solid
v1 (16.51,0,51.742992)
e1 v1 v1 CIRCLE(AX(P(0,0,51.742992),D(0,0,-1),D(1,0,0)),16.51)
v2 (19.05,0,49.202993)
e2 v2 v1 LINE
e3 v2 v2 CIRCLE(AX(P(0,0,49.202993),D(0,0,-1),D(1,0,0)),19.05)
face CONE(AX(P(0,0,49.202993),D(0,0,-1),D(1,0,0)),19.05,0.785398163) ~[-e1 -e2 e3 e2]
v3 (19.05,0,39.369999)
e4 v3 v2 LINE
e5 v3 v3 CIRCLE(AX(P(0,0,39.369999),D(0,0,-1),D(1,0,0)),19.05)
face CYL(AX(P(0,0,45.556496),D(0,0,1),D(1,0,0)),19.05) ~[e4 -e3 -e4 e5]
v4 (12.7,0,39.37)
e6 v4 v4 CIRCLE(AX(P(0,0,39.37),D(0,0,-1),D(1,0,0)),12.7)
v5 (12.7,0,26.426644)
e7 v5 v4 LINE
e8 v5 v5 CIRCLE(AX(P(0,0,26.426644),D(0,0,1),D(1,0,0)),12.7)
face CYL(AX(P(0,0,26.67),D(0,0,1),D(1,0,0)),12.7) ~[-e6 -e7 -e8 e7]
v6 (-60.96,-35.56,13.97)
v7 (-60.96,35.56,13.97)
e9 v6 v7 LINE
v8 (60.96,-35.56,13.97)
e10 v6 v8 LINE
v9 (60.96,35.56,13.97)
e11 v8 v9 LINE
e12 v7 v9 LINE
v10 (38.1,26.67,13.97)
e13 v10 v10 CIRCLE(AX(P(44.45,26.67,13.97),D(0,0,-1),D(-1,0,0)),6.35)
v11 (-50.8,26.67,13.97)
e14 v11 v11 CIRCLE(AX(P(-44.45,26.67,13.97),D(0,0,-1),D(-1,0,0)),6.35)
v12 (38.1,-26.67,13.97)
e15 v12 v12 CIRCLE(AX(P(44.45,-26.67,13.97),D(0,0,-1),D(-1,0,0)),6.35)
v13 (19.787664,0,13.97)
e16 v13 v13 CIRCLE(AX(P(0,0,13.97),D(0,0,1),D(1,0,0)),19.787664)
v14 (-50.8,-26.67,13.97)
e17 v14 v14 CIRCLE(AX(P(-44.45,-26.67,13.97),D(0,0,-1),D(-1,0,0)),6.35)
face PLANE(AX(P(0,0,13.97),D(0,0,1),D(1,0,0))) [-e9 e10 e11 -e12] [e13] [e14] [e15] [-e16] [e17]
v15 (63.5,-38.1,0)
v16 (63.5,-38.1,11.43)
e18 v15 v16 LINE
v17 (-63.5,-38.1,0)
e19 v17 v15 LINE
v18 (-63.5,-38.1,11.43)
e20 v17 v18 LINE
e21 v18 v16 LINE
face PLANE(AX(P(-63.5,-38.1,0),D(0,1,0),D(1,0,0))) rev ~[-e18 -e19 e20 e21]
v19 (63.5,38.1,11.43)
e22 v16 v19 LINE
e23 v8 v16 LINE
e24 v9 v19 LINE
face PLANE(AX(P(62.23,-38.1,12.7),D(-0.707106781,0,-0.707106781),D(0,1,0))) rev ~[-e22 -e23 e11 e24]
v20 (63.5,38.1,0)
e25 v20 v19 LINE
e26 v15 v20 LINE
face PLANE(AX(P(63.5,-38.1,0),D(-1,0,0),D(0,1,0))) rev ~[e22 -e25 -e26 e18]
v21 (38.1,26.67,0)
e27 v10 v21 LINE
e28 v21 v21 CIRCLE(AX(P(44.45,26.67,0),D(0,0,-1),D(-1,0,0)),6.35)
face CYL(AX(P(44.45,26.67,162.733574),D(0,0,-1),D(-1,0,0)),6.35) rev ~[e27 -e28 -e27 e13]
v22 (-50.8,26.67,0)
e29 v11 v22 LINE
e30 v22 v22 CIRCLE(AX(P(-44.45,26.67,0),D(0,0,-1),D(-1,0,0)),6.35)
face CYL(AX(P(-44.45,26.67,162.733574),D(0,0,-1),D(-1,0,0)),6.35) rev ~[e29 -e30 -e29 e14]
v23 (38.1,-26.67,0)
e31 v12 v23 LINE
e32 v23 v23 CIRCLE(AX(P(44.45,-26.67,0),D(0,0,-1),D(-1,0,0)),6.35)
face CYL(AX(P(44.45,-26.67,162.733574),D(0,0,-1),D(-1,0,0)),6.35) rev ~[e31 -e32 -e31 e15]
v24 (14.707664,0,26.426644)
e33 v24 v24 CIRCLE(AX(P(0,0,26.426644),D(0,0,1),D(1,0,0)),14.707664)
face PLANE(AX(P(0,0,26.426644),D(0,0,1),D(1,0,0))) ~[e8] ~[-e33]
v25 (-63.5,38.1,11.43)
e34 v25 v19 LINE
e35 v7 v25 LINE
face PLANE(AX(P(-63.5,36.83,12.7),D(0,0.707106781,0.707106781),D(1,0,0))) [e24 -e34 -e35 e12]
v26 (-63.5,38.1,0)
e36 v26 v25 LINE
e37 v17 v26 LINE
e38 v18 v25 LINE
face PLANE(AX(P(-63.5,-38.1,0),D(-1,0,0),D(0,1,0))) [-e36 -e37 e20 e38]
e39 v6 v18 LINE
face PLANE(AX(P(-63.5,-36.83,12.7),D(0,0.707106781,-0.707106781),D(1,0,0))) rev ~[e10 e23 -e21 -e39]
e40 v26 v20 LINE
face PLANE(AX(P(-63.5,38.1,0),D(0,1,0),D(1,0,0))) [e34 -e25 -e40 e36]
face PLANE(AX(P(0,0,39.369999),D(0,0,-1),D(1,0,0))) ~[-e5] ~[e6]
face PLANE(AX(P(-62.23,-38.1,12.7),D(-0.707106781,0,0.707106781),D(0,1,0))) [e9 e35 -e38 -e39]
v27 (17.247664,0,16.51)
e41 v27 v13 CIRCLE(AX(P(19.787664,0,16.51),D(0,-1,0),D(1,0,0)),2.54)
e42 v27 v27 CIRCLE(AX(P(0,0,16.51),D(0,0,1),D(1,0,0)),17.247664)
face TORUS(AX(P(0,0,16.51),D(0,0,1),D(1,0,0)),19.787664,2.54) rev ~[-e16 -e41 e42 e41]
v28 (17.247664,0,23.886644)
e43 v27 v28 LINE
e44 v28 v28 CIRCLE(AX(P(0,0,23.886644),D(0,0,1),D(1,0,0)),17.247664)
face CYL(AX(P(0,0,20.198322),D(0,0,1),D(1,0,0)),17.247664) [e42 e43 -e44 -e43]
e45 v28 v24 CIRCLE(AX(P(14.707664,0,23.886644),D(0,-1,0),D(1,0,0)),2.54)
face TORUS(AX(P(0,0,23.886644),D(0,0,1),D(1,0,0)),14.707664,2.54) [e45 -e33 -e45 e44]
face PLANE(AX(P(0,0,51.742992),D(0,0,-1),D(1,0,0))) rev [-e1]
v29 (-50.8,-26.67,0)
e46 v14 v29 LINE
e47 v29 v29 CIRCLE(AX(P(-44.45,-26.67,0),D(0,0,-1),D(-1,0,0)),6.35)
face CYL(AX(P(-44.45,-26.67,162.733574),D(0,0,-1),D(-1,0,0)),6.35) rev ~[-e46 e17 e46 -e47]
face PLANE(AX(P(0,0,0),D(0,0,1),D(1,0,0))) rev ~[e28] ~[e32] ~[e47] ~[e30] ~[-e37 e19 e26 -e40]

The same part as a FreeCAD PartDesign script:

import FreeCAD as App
import Part
import Sketcher
from FreeCAD import Vector
Q = App.Units.Quantity


def edges_at(feature, points):
    """Names of the edges that pass closest to the given points."""
    edges = feature.Shape.Edges
    near = lambda p: min(range(len(edges)), key=lambda i: edges[i].distToShape(Part.Vertex(*p))[0])
    return sorted({f"Edge{near(p) + 1}" for p in points})


def add_polygon(sketch, points):
    """Adds a closed chain of lines whose ends are joined by coincident constraints."""
    first, n = sketch.GeometryCount, len(points)
    for a, b in zip(points, points[1:] + points[:1]):
        sketch.addGeometry(Part.LineSegment(App.Vector(*a, 0), App.Vector(*b, 0)), False)
    for i in range(n):
        sketch.addConstraint(Sketcher.Constraint("Coincident", first + i, 2, first + (i + 1) % n, 1))

doc = App.newDocument("Part")
params = doc.addObject("Spreadsheet::Sheet", "Params")
for row, (alias, value) in enumerate([
    ("sketch1_width", "5 in"),
    ("sketch1_height", "3 in"),
    ("pad1_length", "0.55 in"),
    ("sketch2_diameter", "0.5 in"),
    ("hole_diameter", "0.5 in"),
    ("sketch3_height", "1 in"),
    ("sketch3_width", "0.5 in"),
    ("revolution_angle", "360 deg"),
    ("sketch4_width", "0.75 in"),
    ("revolution2_angle", "360 deg"),
    ("revolution3_angle", "360 deg"),
    ("fillet_radius", "0.1 in"),
    ("chamfer_size", "0.1 in"),
    ("chamfer2_size", "0.1 in"),
], start=1):
    params.set(f"A{row}", alias)
    params.set(f"B{row}", "=" + value)
    params.setAlias(f"B{row}", alias)

body = doc.addObject("PartDesign::Body", "Body")

sketch1 = doc.addObject("Sketcher::SketchObject", "Sketch")
body.addObject(sketch1)
sketch1.AttachmentSupport = (doc.XY_Plane, [""])
sketch1.MapMode = "FlatFace"
add_polygon(sketch1, [(-64, 38), (-64, -38), (64, -38), (64, 38)])
sketch1.addConstraint([
    Sketcher.Constraint("Vertical", 0),
    Sketcher.Constraint("Horizontal", 1),
    Sketcher.Constraint("Vertical", 2),
    Sketcher.Constraint("Horizontal", 3),
    Sketcher.Constraint("Symmetric", 0, 2, 2, 2, -1, 1),
    Sketcher.Constraint("DistanceX", 1, 1, 1, 2, Q("5 in")),
    Sketcher.Constraint("DistanceY", 0, 2, 0, 1, Q("3 in")),
])
sketch1.setExpression("Constraints[9]", "Params.sketch1_width")
sketch1.setExpression("Constraints[10]", "Params.sketch1_height")
pad1 = doc.addObject("PartDesign::Pad", "Pad")
body.addObject(pad1)
pad1.Profile = sketch1
pad1.setExpression("Length", "Params.pad1_length")

sketch2 = doc.addObject("Sketcher::SketchObject", "Sketch001")
body.addObject(sketch2)
sketch2.AttachmentSupport = (doc.XY_Plane, [""])
sketch2.MapMode = "FlatFace"
sketch2.AttachmentOffset = App.Placement(Vector(0, 0, 0.55 * 25.4), App.Rotation())
sketch2.addGeometry([
    Part.Circle(Vector(-44, 27, 0), Vector(0, 0, 1), 6),
    Part.Circle(Vector(-44, -27, 0), Vector(0, 0, 1), 6),
    Part.Circle(Vector(44, 27, 0), Vector(0, 0, 1), 6),
    Part.Circle(Vector(44, -27, 0), Vector(0, 0, 1), 6),
], False)
sketch2.addConstraint([
    Sketcher.Constraint("Equal", 0, 1),
    Sketcher.Constraint("Equal", 1, 2),
    Sketcher.Constraint("Equal", 2, 3),
    Sketcher.Constraint("Symmetric", 1, 3, 2, 3, -1, 1),
    Sketcher.Constraint("Symmetric", 0, 3, 3, 3, -1, 1),
    Sketcher.Constraint("Symmetric", 0, 3, 2, 3, -2),
    Sketcher.Constraint("Diameter", 0, Q("0.5 in")),
    Sketcher.Constraint("DistanceY", 1, 3, 0, 3, Q("2.1 in")),
    Sketcher.Constraint("DistanceX", 0, 3, 2, 3, Q("3.5 in")),
])
sketch2.setExpression("Constraints[6]", "Params.sketch2_diameter")
doc.recompute()
hole = doc.addObject("PartDesign::Hole", "Hole")
body.addObject(hole)
hole.Profile = sketch2
hole.ThreadType = "None"
hole.setExpression("Diameter", "Params.hole_diameter")
hole.DepthType = "ThroughAll"

sketch3 = doc.addObject("Sketcher::SketchObject", "Sketch002")
body.addObject(sketch3)
sketch3.AttachmentSupport = (doc.XZ_Plane, [""])
sketch3.MapMode = "FlatFace"
add_polygon(sketch3, [(0, 39), (0, 14), (13, 14), (13, 39)])
sketch3.addConstraint([
    Sketcher.Constraint("Vertical", 0),
    Sketcher.Constraint("Horizontal", 1),
    Sketcher.Constraint("Vertical", 2),
    Sketcher.Constraint("Horizontal", 3),
    Sketcher.Constraint("PointOnObject", 0, 2, -2),
    Sketcher.Constraint("DistanceY", 0, 2, 0, 1, Q("1 in")),
    Sketcher.Constraint("DistanceX", 1, 1, 1, 2, Q("0.5 in")),
    Sketcher.Constraint("DistanceY", -1, 1, 0, 2, Q("0.55 in")),
])
sketch3.setExpression("Constraints[9]", "Params.sketch3_height")
sketch3.setExpression("Constraints[10]", "Params.sketch3_width")
revolution = doc.addObject("PartDesign::Revolution", "Revolution")
body.addObject(revolution)
revolution.Profile = sketch3
revolution.ReferenceAxis = (sketch3, ["V_Axis"])
revolution.setExpression("Angle", "Params.revolution_angle")

sketch4 = doc.addObject("Sketcher::SketchObject", "Sketch003")
body.addObject(sketch4)
sketch4.AttachmentSupport = (doc.XZ_Plane, [""])
sketch4.MapMode = "FlatFace"
add_polygon(sketch4, [(0, 52), (0, 39), (19, 39), (19, 52)])
sketch4.addConstraint([
    Sketcher.Constraint("Vertical", 0),
    Sketcher.Constraint("Horizontal", 1),
    Sketcher.Constraint("Vertical", 2),
    Sketcher.Constraint("Horizontal", 3),
    Sketcher.Constraint("PointOnObject", 0, 2, -2),
    Sketcher.Constraint("DistanceX", 1, 1, 1, 2, Q("0.75 in")),
    Sketcher.Constraint("DistanceY", -1, 1, 0, 2, Q("1.55 in")),
    Sketcher.Constraint("DistanceY", 0, 2, 0, 1, 12.372993),
])
sketch4.setExpression("Constraints[9]", "Params.sketch4_width")
revolution2 = doc.addObject("PartDesign::Revolution", "Revolution001")
body.addObject(revolution2)
revolution2.Profile = sketch4
revolution2.ReferenceAxis = (sketch4, ["V_Axis"])
revolution2.setExpression("Angle", "Params.revolution2_angle")

sketch5 = doc.addObject("Sketcher::SketchObject", "Sketch004")
body.addObject(sketch5)
sketch5.AttachmentSupport = (doc.XZ_Plane, [""])
sketch5.MapMode = "FlatFace"
add_polygon(sketch5, [(8, 26), (8, 14), (17, 14), (17, 26)])
sketch5.addConstraint([
    Sketcher.Constraint("Vertical", 0),
    Sketcher.Constraint("Horizontal", 1),
    Sketcher.Constraint("Vertical", 2),
    Sketcher.Constraint("Horizontal", 3),
    Sketcher.Constraint("DistanceY", -1, 1, 0, 2, Q("0.55 in")),
    Sketcher.Constraint("DistanceX", 1, 1, 1, 2, 9.582032),
    Sketcher.Constraint("DistanceY", 0, 2, 0, 1, 12.456644),
    Sketcher.Constraint("DistanceX", -1, 1, 0, 2, 7.665632),
])
revolution3 = doc.addObject("PartDesign::Revolution", "Revolution002")
body.addObject(revolution3)
revolution3.Profile = sketch5
revolution3.ReferenceAxis = (sketch5, ["V_Axis"])
revolution3.setExpression("Angle", "Params.revolution3_angle")
doc.recompute()

fillet = doc.addObject("PartDesign::Fillet", "Fillet")
body.addObject(fillet)
fillet.Base = (revolution3, edges_at(revolution3, [(-17.248, 0, 26.427), (-17.248, 0, 13.97), (17.248, 0, 20.198)]))
fillet.setExpression("Radius", "Params.fillet_radius")
doc.recompute()

chamfer = doc.addObject("PartDesign::Chamfer", "Chamfer")
body.addObject(chamfer)
chamfer.Base = (fillet, edges_at(fillet, [(-19.05, 0, 51.743)]))
chamfer.setExpression("Size", "Params.chamfer_size")
doc.recompute()

chamfer2 = doc.addObject("PartDesign::Chamfer", "Chamfer001")
body.addObject(chamfer2)
chamfer2.Base = (chamfer, edges_at(chamfer, [
    (0, -38.1, 13.97),
    (-63.5, 0, 13.97),
    (0, 38.1, 13.97),
    (63.5, 0, 13.97),
]))
chamfer2.setExpression("Size", "Params.chamfer2_size")

doc.recompute()
